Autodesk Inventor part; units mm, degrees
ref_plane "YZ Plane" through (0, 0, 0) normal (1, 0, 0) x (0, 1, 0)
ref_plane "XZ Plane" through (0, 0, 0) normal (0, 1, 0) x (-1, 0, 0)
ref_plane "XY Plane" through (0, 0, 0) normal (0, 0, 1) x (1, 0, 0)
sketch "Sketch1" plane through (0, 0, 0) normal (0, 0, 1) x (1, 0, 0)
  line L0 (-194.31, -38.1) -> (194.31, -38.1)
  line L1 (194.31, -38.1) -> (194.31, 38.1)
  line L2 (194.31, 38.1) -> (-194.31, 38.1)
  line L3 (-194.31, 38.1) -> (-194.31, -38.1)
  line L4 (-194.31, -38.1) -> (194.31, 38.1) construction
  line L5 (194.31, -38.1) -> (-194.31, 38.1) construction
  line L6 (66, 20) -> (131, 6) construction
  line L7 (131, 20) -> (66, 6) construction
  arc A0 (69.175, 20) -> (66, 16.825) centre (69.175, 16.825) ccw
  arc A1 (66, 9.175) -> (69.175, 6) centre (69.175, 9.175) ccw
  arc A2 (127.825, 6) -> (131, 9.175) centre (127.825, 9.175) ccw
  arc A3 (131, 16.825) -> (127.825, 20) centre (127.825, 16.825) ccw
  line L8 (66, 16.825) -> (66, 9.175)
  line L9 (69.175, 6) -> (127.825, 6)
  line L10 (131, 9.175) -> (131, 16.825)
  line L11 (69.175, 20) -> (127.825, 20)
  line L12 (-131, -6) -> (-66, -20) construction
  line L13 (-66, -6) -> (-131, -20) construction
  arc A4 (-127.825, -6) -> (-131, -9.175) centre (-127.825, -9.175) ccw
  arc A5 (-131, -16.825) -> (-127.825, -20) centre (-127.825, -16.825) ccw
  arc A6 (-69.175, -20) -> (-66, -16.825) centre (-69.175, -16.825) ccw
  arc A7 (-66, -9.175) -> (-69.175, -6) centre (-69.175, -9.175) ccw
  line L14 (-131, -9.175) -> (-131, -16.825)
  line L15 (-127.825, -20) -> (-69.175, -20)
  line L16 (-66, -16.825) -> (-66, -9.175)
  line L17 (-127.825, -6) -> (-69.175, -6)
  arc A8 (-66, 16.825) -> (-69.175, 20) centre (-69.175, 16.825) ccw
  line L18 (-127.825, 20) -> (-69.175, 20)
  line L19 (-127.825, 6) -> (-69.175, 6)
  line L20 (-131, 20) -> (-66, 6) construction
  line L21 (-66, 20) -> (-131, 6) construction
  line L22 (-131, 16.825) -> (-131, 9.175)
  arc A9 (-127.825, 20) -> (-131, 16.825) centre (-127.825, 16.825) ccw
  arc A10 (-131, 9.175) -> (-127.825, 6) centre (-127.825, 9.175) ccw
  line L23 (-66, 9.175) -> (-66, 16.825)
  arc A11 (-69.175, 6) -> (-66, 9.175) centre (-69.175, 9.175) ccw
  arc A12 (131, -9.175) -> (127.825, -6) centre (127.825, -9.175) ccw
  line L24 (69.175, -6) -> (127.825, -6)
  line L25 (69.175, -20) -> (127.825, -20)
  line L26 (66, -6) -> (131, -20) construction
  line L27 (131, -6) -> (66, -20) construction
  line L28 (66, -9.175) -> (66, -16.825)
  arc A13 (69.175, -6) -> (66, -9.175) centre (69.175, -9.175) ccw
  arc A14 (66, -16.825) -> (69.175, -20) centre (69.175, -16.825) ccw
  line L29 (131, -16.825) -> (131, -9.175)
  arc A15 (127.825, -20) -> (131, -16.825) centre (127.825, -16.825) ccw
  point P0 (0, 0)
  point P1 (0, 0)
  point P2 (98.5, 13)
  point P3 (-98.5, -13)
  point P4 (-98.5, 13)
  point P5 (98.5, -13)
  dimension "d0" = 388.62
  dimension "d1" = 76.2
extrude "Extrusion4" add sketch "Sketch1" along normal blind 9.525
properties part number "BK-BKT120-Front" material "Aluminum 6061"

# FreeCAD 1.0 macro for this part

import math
import FreeCAD as App
import Part
import Sketcher
from FreeCAD import Vector
Q = App.Units.Quantity

doc = App.newDocument("Part")
params = doc.addObject("Spreadsheet::Sheet", "Params")
for row, (alias, value) in enumerate([
    ("sketch1_height", "3 in"),
    ("sketch1_width", "15.3 in"),
    ("sketch1_radius", "0.125 in"),
    ("pad1_length", "0.375 in"),
], start=1):
    params.set(f"A{row}", alias)
    params.set(f"B{row}", "=" + value)
    params.setAlias(f"B{row}", alias)

body = doc.addObject("PartDesign::Body", "Body")

# Sketch on XY plane
sketch1 = doc.addObject("Sketcher::SketchObject", "Sketch")
body.addObject(sketch1)
sketch1.AttachmentSupport = (doc.XY_Plane, [""])
sketch1.MapMode = "FlatFace"
sketch1.addGeometry([
    Part.LineSegment(Vector(-194.3, 38.1, 0), Vector(-194.3, -38.1, 0)),  # 0
    Part.LineSegment(Vector(-194.3, -38.1, 0), Vector(194.3, -38.1, 0)),  # 1
    Part.LineSegment(Vector(194.3, -38.1, 0), Vector(194.3, 38.1, 0)),  # 2
    Part.LineSegment(Vector(194.3, 38.1, 0), Vector(-194.3, 38.1, 0)),  # 3
    Part.ArcOfCircle(Part.Circle(Vector(-127.8, -9.2, 0), Vector(0, 0, 1), 3.2), math.radians(90), math.radians(180)),  # 4
    Part.LineSegment(Vector(-127.8, -6, 0), Vector(-69.2, -6, 0)),  # 5
    Part.ArcOfCircle(Part.Circle(Vector(-69.2, -9.2, 0), Vector(0, 0, 1), 3.2), math.radians(0), math.radians(90)),  # 6
    Part.LineSegment(Vector(-66, -9.2, 0), Vector(-66, -16.8, 0)),  # 7
    Part.ArcOfCircle(Part.Circle(Vector(-69.2, -16.8, 0), Vector(0, 0, 1), 3.2), math.radians(-90), math.radians(0)),  # 8
    Part.LineSegment(Vector(-69.2, -20, 0), Vector(-127.8, -20, 0)),  # 9
    Part.ArcOfCircle(Part.Circle(Vector(-127.8, -16.8, 0), Vector(0, 0, 1), 3.2), math.radians(180), math.radians(270)),  # 10
    Part.LineSegment(Vector(-131, -16.8, 0), Vector(-131, -9.2, 0)),  # 11
    Part.ArcOfCircle(Part.Circle(Vector(127.8, -9.2, 0), Vector(0, 0, 1), 3.2), math.radians(0), math.radians(90)),  # 12
    Part.LineSegment(Vector(131, -9.2, 0), Vector(131, -16.8, 0)),  # 13
    Part.ArcOfCircle(Part.Circle(Vector(127.8, -16.8, 0), Vector(0, 0, 1), 3.2), math.radians(-90), math.radians(0)),  # 14
    Part.LineSegment(Vector(127.8, -20, 0), Vector(69.2, -20, 0)),  # 15
    Part.ArcOfCircle(Part.Circle(Vector(69.2, -16.8, 0), Vector(0, 0, 1), 3.2), math.radians(180), math.radians(270)),  # 16
    Part.LineSegment(Vector(66, -16.8, 0), Vector(66, -9.2, 0)),  # 17
    Part.ArcOfCircle(Part.Circle(Vector(69.2, -9.2, 0), Vector(0, 0, 1), 3.2), math.radians(90), math.radians(180)),  # 18
    Part.LineSegment(Vector(69.2, -6, 0), Vector(127.8, -6, 0)),  # 19
    Part.ArcOfCircle(Part.Circle(Vector(-69.2, 16.8, 0), Vector(0, 0, 1), 3.2), math.radians(0), math.radians(90)),  # 20
    Part.LineSegment(Vector(-66, 16.8, 0), Vector(-66, 9.2, 0)),  # 21
    Part.ArcOfCircle(Part.Circle(Vector(-69.2, 9.2, 0), Vector(0, 0, 1), 3.2), math.radians(-90), math.radians(0)),  # 22
    Part.LineSegment(Vector(-69.2, 6, 0), Vector(-127.8, 6, 0)),  # 23
    Part.ArcOfCircle(Part.Circle(Vector(-127.8, 9.2, 0), Vector(0, 0, 1), 3.2), math.radians(180), math.radians(270)),  # 24
    Part.LineSegment(Vector(-131, 9.2, 0), Vector(-131, 16.8, 0)),  # 25
    Part.ArcOfCircle(Part.Circle(Vector(-127.8, 16.8, 0), Vector(0, 0, 1), 3.2), math.radians(90), math.radians(180)),  # 26
    Part.LineSegment(Vector(-127.8, 20, 0), Vector(-69.2, 20, 0)),  # 27
    Part.ArcOfCircle(Part.Circle(Vector(69.2, 16.8, 0), Vector(0, 0, 1), 3.2), math.radians(90), math.radians(180)),  # 28
    Part.LineSegment(Vector(69.2, 20, 0), Vector(127.8, 20, 0)),  # 29
    Part.ArcOfCircle(Part.Circle(Vector(127.8, 16.8, 0), Vector(0, 0, 1), 3.2), math.radians(0), math.radians(90)),  # 30
    Part.LineSegment(Vector(131, 16.8, 0), Vector(131, 9.2, 0)),  # 31
    Part.ArcOfCircle(Part.Circle(Vector(127.8, 9.2, 0), Vector(0, 0, 1), 3.2), math.radians(-90), math.radians(0)),  # 32
    Part.LineSegment(Vector(127.8, 6, 0), Vector(69.2, 6, 0)),  # 33
    Part.ArcOfCircle(Part.Circle(Vector(69.2, 9.2, 0), Vector(0, 0, 1), 3.2), math.radians(180), math.radians(270)),  # 34
    Part.LineSegment(Vector(66, 9.2, 0), Vector(66, 16.8, 0)),  # 35
], False)
sketch1.addConstraint([
    Sketcher.Constraint("Coincident", 0, 2, 1, 1),
    Sketcher.Constraint("Coincident", 1, 2, 2, 1),
    Sketcher.Constraint("Coincident", 2, 2, 3, 1),
    Sketcher.Constraint("Coincident", 3, 2, 0, 1),
    Sketcher.Constraint("Tangent", 4, 1, 5, 1),
    Sketcher.Constraint("Tangent", 5, 2, 6, 2),
    Sketcher.Constraint("Tangent", 6, 1, 7, 1),
    Sketcher.Constraint("Tangent", 7, 2, 8, 2),
    Sketcher.Constraint("Tangent", 8, 1, 9, 1),
    Sketcher.Constraint("Tangent", 9, 2, 10, 2),
    Sketcher.Constraint("Tangent", 10, 1, 11, 1),
    Sketcher.Constraint("Tangent", 11, 2, 4, 2),
    Sketcher.Constraint("Tangent", 12, 1, 13, 1),
    Sketcher.Constraint("Tangent", 13, 2, 14, 2),
    Sketcher.Constraint("Tangent", 14, 1, 15, 1),
    Sketcher.Constraint("Tangent", 15, 2, 16, 2),
    Sketcher.Constraint("Tangent", 16, 1, 17, 1),
    Sketcher.Constraint("Tangent", 17, 2, 18, 2),
    Sketcher.Constraint("Tangent", 18, 1, 19, 1),
    Sketcher.Constraint("Tangent", 19, 2, 12, 2),
    Sketcher.Constraint("Tangent", 20, 1, 21, 1),
    Sketcher.Constraint("Tangent", 21, 2, 22, 2),
    Sketcher.Constraint("Tangent", 22, 1, 23, 1),
    Sketcher.Constraint("Tangent", 23, 2, 24, 2),
    Sketcher.Constraint("Tangent", 24, 1, 25, 1),
    Sketcher.Constraint("Tangent", 25, 2, 26, 2),
    Sketcher.Constraint("Tangent", 26, 1, 27, 1),
    Sketcher.Constraint("Tangent", 27, 2, 20, 2),
    Sketcher.Constraint("Tangent", 28, 1, 29, 1),
    Sketcher.Constraint("Tangent", 29, 2, 30, 2),
    Sketcher.Constraint("Tangent", 30, 1, 31, 1),
    Sketcher.Constraint("Tangent", 31, 2, 32, 2),
    Sketcher.Constraint("Tangent", 32, 1, 33, 1),
    Sketcher.Constraint("Tangent", 33, 2, 34, 2),
    Sketcher.Constraint("Tangent", 34, 1, 35, 1),
    Sketcher.Constraint("Tangent", 35, 2, 28, 2),
    Sketcher.Constraint("Vertical", 0),
    Sketcher.Constraint("Horizontal", 1),
    Sketcher.Constraint("Vertical", 2),
    Sketcher.Constraint("Horizontal", 3),
    Sketcher.Constraint("Horizontal", 5),
    Sketcher.Constraint("Vertical", 7),
    Sketcher.Constraint("Horizontal", 9),
    Sketcher.Constraint("Vertical", 11),
    Sketcher.Constraint("Vertical", 13),
    Sketcher.Constraint("Horizontal", 15),
    Sketcher.Constraint("Vertical", 17),
    Sketcher.Constraint("Horizontal", 19),
    Sketcher.Constraint("Vertical", 21),
    Sketcher.Constraint("Horizontal", 23),
    Sketcher.Constraint("Vertical", 25),
    Sketcher.Constraint("Horizontal", 27),
    Sketcher.Constraint("Horizontal", 29),
    Sketcher.Constraint("Vertical", 31),
    Sketcher.Constraint("Horizontal", 33),
    Sketcher.Constraint("Vertical", 35),
    Sketcher.Constraint("Equal", 4, 6),
    Sketcher.Constraint("Equal", 6, 8),
    Sketcher.Constraint("Equal", 8, 10),
    Sketcher.Constraint("Equal", 10, 12),
    Sketcher.Constraint("Equal", 12, 14),
    Sketcher.Constraint("Equal", 14, 16),
    Sketcher.Constraint("Equal", 16, 18),
    Sketcher.Constraint("Equal", 18, 20),
    Sketcher.Constraint("Equal", 20, 22),
    Sketcher.Constraint("Equal", 22, 24),
    Sketcher.Constraint("Equal", 24, 26),
    Sketcher.Constraint("Equal", 26, 28),
    Sketcher.Constraint("Equal", 28, 30),
    Sketcher.Constraint("Equal", 30, 32),
    Sketcher.Constraint("Equal", 32, 34),
    Sketcher.Constraint("Symmetric", 16, 3, 20, 3, -1, 1),
    Sketcher.Constraint("Symmetric", 12, 3, 24, 3, -1, 1),
    Sketcher.Constraint("Symmetric", 8, 3, 28, 3, -1, 1),
    Sketcher.Constraint("Symmetric", 4, 3, 32, 3, -1, 1),
    Sketcher.Constraint("Symmetric", 0, 2, 2, 2, -1, 1),
    Sketcher.Constraint("Symmetric", 4, 3, 12, 3, -2),
    Sketcher.Constraint("Symmetric", 8, 3, 16, 3, -2),
    Sketcher.Constraint("DistanceY", 0, 2, 0, 1, Q("3 in")),
    Sketcher.Constraint("DistanceX", 1, 1, 1, 2, Q("15.3 in")),
    Sketcher.Constraint("Radius", 4, Q("0.125 in")),
    Sketcher.Constraint("DistanceX", 5, 1, 5, 2, 58.65),
    Sketcher.Constraint("DistanceY", 7, 2, 7, 1, 7.65),
    Sketcher.Constraint("DistanceY", 8, 3, -1, 1, Q("0.6624 in")),
    Sketcher.Constraint("DistanceX", 6, 3, 12, 3, Q("7.7559 in")),
])
sketch1.setExpression("Constraints[78]", "Params.sketch1_height")
sketch1.setExpression("Constraints[79]", "Params.sketch1_width")
sketch1.setExpression("Constraints[80]", "Params.sketch1_radius")
pad1 = doc.addObject("PartDesign::Pad", "Pad")
body.addObject(pad1)
pad1.Profile = sketch1
pad1.setExpression("Length", "Params.pad1_length")

doc.recompute()
